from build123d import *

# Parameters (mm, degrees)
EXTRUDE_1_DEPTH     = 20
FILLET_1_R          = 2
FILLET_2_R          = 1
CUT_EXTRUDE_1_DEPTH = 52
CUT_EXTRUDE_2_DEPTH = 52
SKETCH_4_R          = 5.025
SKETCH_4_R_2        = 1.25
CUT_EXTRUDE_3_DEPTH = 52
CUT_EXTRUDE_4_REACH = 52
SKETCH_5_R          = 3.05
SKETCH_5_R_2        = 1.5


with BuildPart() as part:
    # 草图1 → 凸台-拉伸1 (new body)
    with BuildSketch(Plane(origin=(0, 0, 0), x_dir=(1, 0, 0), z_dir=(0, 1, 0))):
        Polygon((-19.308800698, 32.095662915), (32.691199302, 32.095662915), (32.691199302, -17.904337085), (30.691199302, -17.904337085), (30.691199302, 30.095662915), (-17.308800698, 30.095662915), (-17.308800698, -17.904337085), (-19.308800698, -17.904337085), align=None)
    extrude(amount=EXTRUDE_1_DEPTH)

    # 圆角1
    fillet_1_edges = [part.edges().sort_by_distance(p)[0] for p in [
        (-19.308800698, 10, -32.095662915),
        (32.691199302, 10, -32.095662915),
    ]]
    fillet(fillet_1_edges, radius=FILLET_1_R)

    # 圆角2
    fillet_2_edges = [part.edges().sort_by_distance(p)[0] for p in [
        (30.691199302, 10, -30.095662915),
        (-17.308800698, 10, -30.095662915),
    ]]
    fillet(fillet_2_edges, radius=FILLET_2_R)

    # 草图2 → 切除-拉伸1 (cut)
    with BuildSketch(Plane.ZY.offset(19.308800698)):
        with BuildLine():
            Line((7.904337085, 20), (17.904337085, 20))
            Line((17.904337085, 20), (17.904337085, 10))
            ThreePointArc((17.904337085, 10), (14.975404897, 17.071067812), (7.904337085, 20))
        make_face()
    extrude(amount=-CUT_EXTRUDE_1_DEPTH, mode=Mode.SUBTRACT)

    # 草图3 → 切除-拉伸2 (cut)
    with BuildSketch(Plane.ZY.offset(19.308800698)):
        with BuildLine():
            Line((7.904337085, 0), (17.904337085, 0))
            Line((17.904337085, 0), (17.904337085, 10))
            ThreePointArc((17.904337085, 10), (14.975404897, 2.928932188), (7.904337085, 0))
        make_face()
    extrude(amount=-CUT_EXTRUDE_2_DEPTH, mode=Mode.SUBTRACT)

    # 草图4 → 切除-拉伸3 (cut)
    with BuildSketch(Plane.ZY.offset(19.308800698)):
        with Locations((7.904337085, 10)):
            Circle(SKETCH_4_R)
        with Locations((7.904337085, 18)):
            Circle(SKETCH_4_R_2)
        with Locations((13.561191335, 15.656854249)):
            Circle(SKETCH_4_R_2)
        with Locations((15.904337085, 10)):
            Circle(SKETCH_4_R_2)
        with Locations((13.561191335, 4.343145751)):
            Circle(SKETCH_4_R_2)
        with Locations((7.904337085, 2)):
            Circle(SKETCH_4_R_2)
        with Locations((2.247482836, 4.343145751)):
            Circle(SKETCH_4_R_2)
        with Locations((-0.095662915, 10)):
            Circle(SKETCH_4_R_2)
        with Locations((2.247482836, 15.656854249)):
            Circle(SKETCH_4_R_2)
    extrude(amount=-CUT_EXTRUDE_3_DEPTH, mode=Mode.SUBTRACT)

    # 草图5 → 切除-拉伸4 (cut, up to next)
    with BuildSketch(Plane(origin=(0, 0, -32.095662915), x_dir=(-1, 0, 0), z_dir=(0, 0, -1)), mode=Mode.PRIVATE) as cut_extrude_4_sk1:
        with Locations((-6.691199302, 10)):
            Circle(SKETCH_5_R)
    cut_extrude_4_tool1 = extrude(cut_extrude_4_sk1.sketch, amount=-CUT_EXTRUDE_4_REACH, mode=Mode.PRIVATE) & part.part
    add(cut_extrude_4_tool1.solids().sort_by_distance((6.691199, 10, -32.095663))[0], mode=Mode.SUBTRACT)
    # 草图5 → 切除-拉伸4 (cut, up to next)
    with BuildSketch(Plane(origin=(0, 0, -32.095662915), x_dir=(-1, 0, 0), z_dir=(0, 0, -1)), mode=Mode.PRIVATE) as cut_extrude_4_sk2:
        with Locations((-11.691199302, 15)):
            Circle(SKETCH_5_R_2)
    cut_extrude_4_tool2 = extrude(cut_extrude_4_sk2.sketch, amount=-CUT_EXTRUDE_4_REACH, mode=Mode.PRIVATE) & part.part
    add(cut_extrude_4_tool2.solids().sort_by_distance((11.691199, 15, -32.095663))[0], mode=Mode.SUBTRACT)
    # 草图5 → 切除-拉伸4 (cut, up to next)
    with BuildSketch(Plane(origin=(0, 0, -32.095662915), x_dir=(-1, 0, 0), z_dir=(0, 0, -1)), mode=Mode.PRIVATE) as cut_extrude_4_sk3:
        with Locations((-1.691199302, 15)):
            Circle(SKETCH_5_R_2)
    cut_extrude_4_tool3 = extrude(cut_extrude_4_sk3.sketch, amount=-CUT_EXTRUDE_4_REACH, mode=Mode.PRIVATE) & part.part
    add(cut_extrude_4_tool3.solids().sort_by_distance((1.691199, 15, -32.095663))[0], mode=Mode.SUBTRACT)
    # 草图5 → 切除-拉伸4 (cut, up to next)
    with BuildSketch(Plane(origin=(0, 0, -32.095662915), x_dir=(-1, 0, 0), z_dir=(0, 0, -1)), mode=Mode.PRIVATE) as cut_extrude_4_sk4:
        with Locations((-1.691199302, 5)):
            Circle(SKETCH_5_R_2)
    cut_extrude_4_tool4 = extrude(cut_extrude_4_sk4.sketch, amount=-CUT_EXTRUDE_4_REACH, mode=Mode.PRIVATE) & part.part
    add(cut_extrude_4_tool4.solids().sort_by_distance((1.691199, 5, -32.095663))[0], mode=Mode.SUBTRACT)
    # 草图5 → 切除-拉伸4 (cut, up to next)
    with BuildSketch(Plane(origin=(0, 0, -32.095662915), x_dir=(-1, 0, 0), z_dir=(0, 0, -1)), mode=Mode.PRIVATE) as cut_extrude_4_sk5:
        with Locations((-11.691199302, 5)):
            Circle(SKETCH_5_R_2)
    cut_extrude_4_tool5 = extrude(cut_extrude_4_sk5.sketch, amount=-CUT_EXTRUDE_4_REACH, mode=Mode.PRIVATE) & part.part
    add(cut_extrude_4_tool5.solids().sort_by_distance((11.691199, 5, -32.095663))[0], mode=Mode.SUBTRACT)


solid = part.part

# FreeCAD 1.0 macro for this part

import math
import FreeCAD as App
import Part
import Sketcher


def edges_at(feature, points):
    """Names of the edges that pass closest to the given points."""
    edges = feature.Shape.Edges
    near = lambda p: min(range(len(edges)), key=lambda i: edges[i].distToShape(Part.Vertex(*p))[0])
    return sorted({f"Edge{near(p) + 1}" for p in points})


def add_polygon(sketch, points):
    """Adds a closed chain of lines whose ends are joined by coincident constraints."""
    first, n = sketch.GeometryCount, len(points)
    for a, b in zip(points, points[1:] + points[:1]):
        sketch.addGeometry(Part.LineSegment(App.Vector(*a, 0), App.Vector(*b, 0)), False)
    for i in range(n):
        sketch.addConstraint(Sketcher.Constraint("Coincident", first + i, 2, first + (i + 1) % n, 1))

doc = App.newDocument("Part")
body = doc.addObject("PartDesign::Body", "Body")

# Sketch on XZ plane
sketch1 = body.newObject("Sketcher::SketchObject", "Sketch")
sketch1.AttachmentSupport = (doc.getObject("XZ_Plane"), [""])
sketch1.MapMode = "FlatFace"
add_polygon(sketch1, [(32.7, -32.1), (-19.3, -32.1), (-19.3, 17.9), (-17.3, 17.9), (-17.3, -30.1), (30.7, -30.1), (30.7, 17.9), (32.7, 17.9)])  # lines 0-7
sketch1.addConstraint(Sketcher.Constraint("Horizontal", 0))
sketch1.addConstraint(Sketcher.Constraint("Vertical", 1))
sketch1.addConstraint(Sketcher.Constraint("Horizontal", 2))
sketch1.addConstraint(Sketcher.Constraint("Vertical", 3))
sketch1.addConstraint(Sketcher.Constraint("Horizontal", 4))
sketch1.addConstraint(Sketcher.Constraint("Vertical", 5))
sketch1.addConstraint(Sketcher.Constraint("Horizontal", 6))
sketch1.addConstraint(Sketcher.Constraint("Vertical", 7))
sketch1.addConstraint(Sketcher.Constraint("Horizontal", 2, 2, 5, 2))
sketch1.addConstraint(Sketcher.Constraint("Equal", 2, 6))
sketch1.addConstraint(Sketcher.Constraint("Equal", 4, 3))
sketch1.addConstraint(Sketcher.Constraint("DistanceX", 0, 2, 0, 1, 52.0))
sketch1.addConstraint(Sketcher.Constraint("DistanceX", 2, 1, 2, 2, 2.0))
sketch1.addConstraint(Sketcher.Constraint("DistanceY", 1, 1, 1, 2, 50.0))
sketch1.addConstraint(Sketcher.Constraint("DistanceX", 0, 2, -1, 1, 19.308801))
sketch1.addConstraint(Sketcher.Constraint("DistanceY", 0, 2, -1, 1, 32.095663))
pad1 = body.newObject("PartDesign::Pad", "Pad")
pad1.Profile = sketch1
pad1.Length = 20
pad1.Reversed = True
doc.recompute()

fillet = body.newObject("PartDesign::Fillet", "Fillet")
fillet.Base = (pad1, edges_at(pad1, [(-19.309, 10, -32.096), (32.691, 10, -32.096)]))
fillet.Radius = 2
doc.recompute()

fillet2 = body.newObject("PartDesign::Fillet", "Fillet001")
fillet2.Base = (fillet, edges_at(fillet, [(30.691, 10, -30.096), (-17.309, 10, -30.096)]))
fillet2.Radius = 1

# Sketch on YZ plane
sketch2 = body.newObject("Sketcher::SketchObject", "Sketch001")
sketch2.AttachmentSupport = (doc.getObject("YZ_Plane"), [""])
sketch2.MapMode = "FlatFace"
sketch2.AttachmentOffset = App.Placement(App.Vector(0, 0, -19.308801), App.Rotation())
sketch2.addGeometry(Part.LineSegment(App.Vector(20, 18, 0), App.Vector(20, 8, 0)), False)
sketch2.addGeometry(Part.ArcOfCircle(Part.Circle(App.Vector(10, 8, 0), App.Vector(0, 0, 1), 10), math.radians(0), math.radians(90)), False)
sketch2.addGeometry(Part.LineSegment(App.Vector(10, 18, 0), App.Vector(20, 18, 0)), False)
sketch2.addConstraint(Sketcher.Constraint("Tangent", 0, 2, 1, 1))
sketch2.addConstraint(Sketcher.Constraint("Tangent", 1, 2, 2, 1))
sketch2.addConstraint(Sketcher.Constraint("Coincident", 2, 2, 0, 1))
sketch2.addConstraint(Sketcher.Constraint("Vertical", 0))
sketch2.addConstraint(Sketcher.Constraint("Horizontal", 2))
sketch2.addConstraint(Sketcher.Constraint("Radius", 1, 10.0))
sketch2.addConstraint(Sketcher.Constraint("DistanceX", -1, 1, 1, 3, 10.0))
sketch2.addConstraint(Sketcher.Constraint("DistanceY", -1, 1, 1, 3, 7.904337))
pocket1 = body.newObject("PartDesign::Pocket", "Pocket")
pocket1.Profile = sketch2
pocket1.Length = 52
pocket1.Reversed = True

# Sketch on YZ plane
sketch3 = body.newObject("Sketcher::SketchObject", "Sketch002")
sketch3.AttachmentSupport = (doc.getObject("YZ_Plane"), [""])
sketch3.MapMode = "FlatFace"
sketch3.AttachmentOffset = App.Placement(App.Vector(0, 0, -19.308801), App.Rotation())
sketch3.addGeometry(Part.LineSegment(App.Vector(0, 8, 0), App.Vector(0, 18, 0)), False)
sketch3.addGeometry(Part.LineSegment(App.Vector(0, 18, 0), App.Vector(10, 18, 0)), False)
sketch3.addGeometry(Part.ArcOfCircle(Part.Circle(App.Vector(10, 8, 0), App.Vector(0, 0, 1), 10), math.radians(90), math.radians(180)), False)
sketch3.addConstraint(Sketcher.Constraint("Coincident", 0, 2, 1, 1))
sketch3.addConstraint(Sketcher.Constraint("Tangent", 1, 2, 2, 1))
sketch3.addConstraint(Sketcher.Constraint("Tangent", 2, 2, 0, 1))
sketch3.addConstraint(Sketcher.Constraint("Vertical", 0))
sketch3.addConstraint(Sketcher.Constraint("Horizontal", 1))
sketch3.addConstraint(Sketcher.Constraint("PointOnObject", 0, 2, -2))
sketch3.addConstraint(Sketcher.Constraint("Radius", 2, 10.0))
sketch3.addConstraint(Sketcher.Constraint("DistanceY", -1, 1, 2, 3, 7.904337))
pocket2 = body.newObject("PartDesign::Pocket", "Pocket001")
pocket2.Profile = sketch3
pocket2.Length = 52
pocket2.Reversed = True

# Sketch on YZ plane
sketch4 = body.newObject("Sketcher::SketchObject", "Sketch003")
sketch4.AttachmentSupport = (doc.getObject("YZ_Plane"), [""])
sketch4.MapMode = "FlatFace"
sketch4.AttachmentOffset = App.Placement(App.Vector(0, 0, -19.308801), App.Rotation())
sketch4.addGeometry(Part.Circle(App.Vector(10, 7.9, 0), App.Vector(0, 0, 1), 5), False)
sketch4.addGeometry(Part.Circle(App.Vector(18, 7.9, 0), App.Vector(0, 0, 1), 1.2), False)
sketch4.addGeometry(Part.Circle(App.Vector(15.7, 13.6, 0), App.Vector(0, 0, 1), 1.2), False)
sketch4.addGeometry(Part.Circle(App.Vector(10, 15.9, 0), App.Vector(0, 0, 1), 1.2), False)
sketch4.addGeometry(Part.Circle(App.Vector(4.3, 13.6, 0), App.Vector(0, 0, 1), 1.2), False)
sketch4.addGeometry(Part.Circle(App.Vector(2, 7.9, 0), App.Vector(0, 0, 1), 1.2), False)
sketch4.addGeometry(Part.Circle(App.Vector(4.3, 2.2, 0), App.Vector(0, 0, 1), 1.2), False)
sketch4.addGeometry(Part.Circle(App.Vector(10, -0.1, 0), App.Vector(0, 0, 1), 1.2), False)
sketch4.addGeometry(Part.Circle(App.Vector(15.7, 2.2, 0), App.Vector(0, 0, 1), 1.2), False)
sketch4.addConstraint(Sketcher.Constraint("Equal", 1, 2))
sketch4.addConstraint(Sketcher.Constraint("Equal", 2, 3))
sketch4.addConstraint(Sketcher.Constraint("Equal", 3, 4))
sketch4.addConstraint(Sketcher.Constraint("Equal", 4, 5))
sketch4.addConstraint(Sketcher.Constraint("Equal", 5, 6))
sketch4.addConstraint(Sketcher.Constraint("Equal", 6, 7))
sketch4.addConstraint(Sketcher.Constraint("Equal", 7, 8))
sketch4.addConstraint(Sketcher.Constraint("Horizontal", 0, 3, 1, 3))
sketch4.addConstraint(Sketcher.Constraint("Horizontal", 2, 3, 4, 3))
sketch4.addConstraint(Sketcher.Constraint("Horizontal", 1, 3, 5, 3))
sketch4.addConstraint(Sketcher.Constraint("Horizontal", 6, 3, 8, 3))
sketch4.addConstraint(Sketcher.Constraint("Vertical", 0, 3, 3, 3))
sketch4.addConstraint(Sketcher.Constraint("Vertical", 4, 3, 6, 3))
sketch4.addConstraint(Sketcher.Constraint("Vertical", 3, 3, 7, 3))
sketch4.addConstraint(Sketcher.Constraint("Vertical", 2, 3, 8, 3))
sketch4.addConstraint(Sketcher.Constraint("Diameter", 1, 2.5))
sketch4.addConstraint(Sketcher.Constraint("Diameter", 0, 10.05))
sketch4.addConstraint(Sketcher.Constraint("DistanceX", -1, 1, 0, 3, 10.0))
sketch4.addConstraint(Sketcher.Constraint("DistanceX", -1, 1, 1, 3, 18.0))
sketch4.addConstraint(Sketcher.Constraint("DistanceX", -1, 1, 5, 3, 2.0))
sketch4.addConstraint(Sketcher.Constraint("DistanceY", 0, 3, 3, 3, 8.0))
sketch4.addConstraint(Sketcher.Constraint("DistanceY", 7, 3, 0, 3, 8.0))
sketch4.addConstraint(Sketcher.Constraint("DistanceY", -1, 1, 2, 3, 13.561191))
sketch4.addConstraint(Sketcher.Constraint("DistanceX", 4, 3, 2, 3, 11.313708))
sketch4.addConstraint(Sketcher.Constraint("DistanceY", 6, 3, 4, 3, 11.313708))
sketch4.addConstraint(Sketcher.Constraint("DistanceY", -1, 1, 0, 3, 7.904337))
sketch4.addConstraint(Sketcher.Constraint("DistanceX", -1, 1, 2, 3, 15.656854))
pocket3 = body.newObject("PartDesign::Pocket", "Pocket002")
pocket3.Profile = sketch4
pocket3.Length = 52
pocket3.Reversed = True

# Sketch on XY plane
sketch5 = body.newObject("Sketcher::SketchObject", "Sketch004")
sketch5.AttachmentSupport = (doc.getObject("XY_Plane"), [""])
sketch5.MapMode = "FlatFace"
sketch5.AttachmentOffset = App.Placement(App.Vector(0, 0, -32.095663), App.Rotation())
sketch5.addGeometry(Part.Circle(App.Vector(6.7, 10, 0), App.Vector(0, 0, 1), 3), False)
sketch5.addConstraint(Sketcher.Constraint("Diameter", 0, 6.1))
sketch5.addConstraint(Sketcher.Constraint("DistanceY", -1, 1, 0, 3, 10.0))
sketch5.addConstraint(Sketcher.Constraint("DistanceX", -1, 1, 0, 3, 6.691199))
pocket4 = body.newObject("PartDesign::Pocket", "Pocket003")
pocket4.Profile = sketch5
pocket4.Type = "UpToFirst"
pocket4.Reversed = True

# Sketch on XY plane
sketch6 = body.newObject("Sketcher::SketchObject", "Sketch005")
sketch6.AttachmentSupport = (doc.getObject("XY_Plane"), [""])
sketch6.MapMode = "FlatFace"
sketch6.AttachmentOffset = App.Placement(App.Vector(0, 0, -32.095663), App.Rotation())
sketch6.addGeometry(Part.Circle(App.Vector(11.7, 15, 0), App.Vector(0, 0, 1), 1.5), False)
sketch6.addConstraint(Sketcher.Constraint("Diameter", 0, 3.0))
sketch6.addConstraint(Sketcher.Constraint("DistanceY", -1, 1, 0, 3, 15.0))
sketch6.addConstraint(Sketcher.Constraint("DistanceX", -1, 1, 0, 3, 11.691199))
pocket5 = body.newObject("PartDesign::Pocket", "Pocket004")
pocket5.Profile = sketch6
pocket5.Type = "UpToFirst"
pocket5.Reversed = True

# Sketch on XY plane
sketch7 = body.newObject("Sketcher::SketchObject", "Sketch006")
sketch7.AttachmentSupport = (doc.getObject("XY_Plane"), [""])
sketch7.MapMode = "FlatFace"
sketch7.AttachmentOffset = App.Placement(App.Vector(0, 0, -32.095663), App.Rotation())
sketch7.addGeometry(Part.Circle(App.Vector(1.7, 15, 0), App.Vector(0, 0, 1), 1.5), False)
sketch7.addConstraint(Sketcher.Constraint("Diameter", 0, 3.0))
sketch7.addConstraint(Sketcher.Constraint("DistanceY", -1, 1, 0, 3, 15.0))
sketch7.addConstraint(Sketcher.Constraint("DistanceX", -1, 1, 0, 3, 1.691199))
pocket6 = body.newObject("PartDesign::Pocket", "Pocket005")
pocket6.Profile = sketch7
pocket6.Type = "UpToFirst"
pocket6.Reversed = True

# Sketch on XY plane
sketch8 = body.newObject("Sketcher::SketchObject", "Sketch007")
sketch8.AttachmentSupport = (doc.getObject("XY_Plane"), [""])
sketch8.MapMode = "FlatFace"
sketch8.AttachmentOffset = App.Placement(App.Vector(0, 0, -32.095663), App.Rotation())
sketch8.addGeometry(Part.Circle(App.Vector(1.7, 5, 0), App.Vector(0, 0, 1), 1.5), False)
sketch8.addConstraint(Sketcher.Constraint("Diameter", 0, 3.0))
sketch8.addConstraint(Sketcher.Constraint("DistanceY", -1, 1, 0, 3, 5.0))
sketch8.addConstraint(Sketcher.Constraint("DistanceX", -1, 1, 0, 3, 1.691199))
pocket7 = body.newObject("PartDesign::Pocket", "Pocket006")
pocket7.Profile = sketch8
pocket7.Type = "UpToFirst"
pocket7.Reversed = True

# Sketch on XY plane
sketch9 = body.newObject("Sketcher::SketchObject", "Sketch008")
sketch9.AttachmentSupport = (doc.getObject("XY_Plane"), [""])
sketch9.MapMode = "FlatFace"
sketch9.AttachmentOffset = App.Placement(App.Vector(0, 0, -32.095663), App.Rotation())
sketch9.addGeometry(Part.Circle(App.Vector(11.7, 5, 0), App.Vector(0, 0, 1), 1.5), False)
sketch9.addConstraint(Sketcher.Constraint("Diameter", 0, 3.0))
sketch9.addConstraint(Sketcher.Constraint("DistanceY", -1, 1, 0, 3, 5.0))
sketch9.addConstraint(Sketcher.Constraint("DistanceX", -1, 1, 0, 3, 11.691199))
pocket8 = body.newObject("PartDesign::Pocket", "Pocket007")
pocket8.Profile = sketch9
pocket8.Type = "UpToFirst"
pocket8.Reversed = True

doc.recompute()
